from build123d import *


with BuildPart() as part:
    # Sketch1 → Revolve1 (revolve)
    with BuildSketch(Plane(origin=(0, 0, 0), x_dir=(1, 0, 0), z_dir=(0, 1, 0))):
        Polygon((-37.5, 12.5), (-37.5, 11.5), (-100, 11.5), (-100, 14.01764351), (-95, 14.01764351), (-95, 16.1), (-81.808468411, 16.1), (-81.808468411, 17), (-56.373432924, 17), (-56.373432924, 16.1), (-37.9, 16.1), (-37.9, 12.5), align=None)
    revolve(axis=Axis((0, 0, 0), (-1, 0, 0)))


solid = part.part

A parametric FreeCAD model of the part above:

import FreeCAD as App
import Part
import Sketcher

doc = App.newDocument("Part")
body = doc.addObject("PartDesign::Body", "Body")

sketch1 = body.newObject("Sketcher::SketchObject", "Sketch")
sketch1.AttachmentSupport = (doc.getObject("XZ_Plane"), [""])
sketch1.MapMode = "FlatFace"
sketch1.addGeometry([
    Part.LineSegment(App.Vector(-37.5, -11.5, 0), App.Vector(-37.5, -12.5, 0)),
    Part.LineSegment(App.Vector(-37.5, -12.5, 0), App.Vector(-37.9, -12.5, 0)),
    Part.LineSegment(App.Vector(-37.9, -12.5, 0), App.Vector(-37.9, -16.1, 0)),
    Part.LineSegment(App.Vector(-37.9, -16.1, 0), App.Vector(-56.37, -16.1, 0)),
    Part.LineSegment(App.Vector(-56.37, -16.1, 0), App.Vector(-56.37, -17, 0)),
    Part.LineSegment(App.Vector(-56.37, -17, 0), App.Vector(-81.81, -17, 0)),
    Part.LineSegment(App.Vector(-81.81, -17, 0), App.Vector(-81.81, -16.1, 0)),
    Part.LineSegment(App.Vector(-81.81, -16.1, 0), App.Vector(-95, -16.1, 0)),
    Part.LineSegment(App.Vector(-95, -16.1, 0), App.Vector(-95, -14.02, 0)),
    Part.LineSegment(App.Vector(-95, -14.02, 0), App.Vector(-100, -14.02, 0)),
    Part.LineSegment(App.Vector(-100, -14.02, 0), App.Vector(-100, -11.5, 0)),
    Part.LineSegment(App.Vector(-100, -11.5, 0), App.Vector(-37.5, -11.5, 0)),
], False)
sketch1.addConstraint([
    Sketcher.Constraint("Coincident", 0, 2, 1, 1),
    Sketcher.Constraint("Coincident", 1, 2, 2, 1),
    Sketcher.Constraint("Coincident", 2, 2, 3, 1),
    Sketcher.Constraint("Coincident", 3, 2, 4, 1),
    Sketcher.Constraint("Coincident", 4, 2, 5, 1),
    Sketcher.Constraint("Coincident", 5, 2, 6, 1),
    Sketcher.Constraint("Coincident", 6, 2, 7, 1),
    Sketcher.Constraint("Coincident", 7, 2, 8, 1),
    Sketcher.Constraint("Coincident", 8, 2, 9, 1),
    Sketcher.Constraint("Coincident", 9, 2, 10, 1),
    Sketcher.Constraint("Coincident", 10, 2, 11, 1),
    Sketcher.Constraint("Coincident", 11, 2, 0, 1),
    Sketcher.Constraint("Vertical", 0),
    Sketcher.Constraint("Horizontal", 1),
    Sketcher.Constraint("Vertical", 2),
    Sketcher.Constraint("Horizontal", 3),
    Sketcher.Constraint("Vertical", 4),
    Sketcher.Constraint("Horizontal", 5),
    Sketcher.Constraint("Vertical", 6),
    Sketcher.Constraint("Horizontal", 7),
    Sketcher.Constraint("Vertical", 8),
    Sketcher.Constraint("Horizontal", 9),
    Sketcher.Constraint("Vertical", 10),
    Sketcher.Constraint("Horizontal", 11),
    Sketcher.Constraint("Horizontal", 3, 2, 6, 2),
    Sketcher.Constraint("DistanceX", 9, 2, 9, 1, 5.0),
    Sketcher.Constraint("DistanceY", 0, 2, 0, 1, 1.0),
    Sketcher.Constraint("DistanceX", 1, 2, 1, 1, 0.4),
    Sketcher.Constraint("DistanceX", 11, 1, 11, 2, 62.5),
    Sketcher.Constraint("DistanceY", 2, 2, 2, 1, 3.6),
    Sketcher.Constraint("DistanceY", 4, 2, 4, 1, 0.9),
    Sketcher.Constraint("DistanceY", 4, 2, -1, 1, 17.0),
    Sketcher.Constraint("DistanceX", 7, 2, -1, 1, 95.0),
    Sketcher.Constraint("DistanceX", 7, 2, 7, 1, 13.191532),
    Sketcher.Constraint("DistanceX", 3, 2, 3, 1, 18.473433),
    Sketcher.Constraint("DistanceY", 8, 1, 8, 2, 2.082356),
])
revolution = body.newObject("PartDesign::Revolution", "Revolution")
revolution.Profile = sketch1
revolution.ReferenceAxis = (sketch1, ["H_Axis"])
revolution.Angle = 360

doc.recompute()
